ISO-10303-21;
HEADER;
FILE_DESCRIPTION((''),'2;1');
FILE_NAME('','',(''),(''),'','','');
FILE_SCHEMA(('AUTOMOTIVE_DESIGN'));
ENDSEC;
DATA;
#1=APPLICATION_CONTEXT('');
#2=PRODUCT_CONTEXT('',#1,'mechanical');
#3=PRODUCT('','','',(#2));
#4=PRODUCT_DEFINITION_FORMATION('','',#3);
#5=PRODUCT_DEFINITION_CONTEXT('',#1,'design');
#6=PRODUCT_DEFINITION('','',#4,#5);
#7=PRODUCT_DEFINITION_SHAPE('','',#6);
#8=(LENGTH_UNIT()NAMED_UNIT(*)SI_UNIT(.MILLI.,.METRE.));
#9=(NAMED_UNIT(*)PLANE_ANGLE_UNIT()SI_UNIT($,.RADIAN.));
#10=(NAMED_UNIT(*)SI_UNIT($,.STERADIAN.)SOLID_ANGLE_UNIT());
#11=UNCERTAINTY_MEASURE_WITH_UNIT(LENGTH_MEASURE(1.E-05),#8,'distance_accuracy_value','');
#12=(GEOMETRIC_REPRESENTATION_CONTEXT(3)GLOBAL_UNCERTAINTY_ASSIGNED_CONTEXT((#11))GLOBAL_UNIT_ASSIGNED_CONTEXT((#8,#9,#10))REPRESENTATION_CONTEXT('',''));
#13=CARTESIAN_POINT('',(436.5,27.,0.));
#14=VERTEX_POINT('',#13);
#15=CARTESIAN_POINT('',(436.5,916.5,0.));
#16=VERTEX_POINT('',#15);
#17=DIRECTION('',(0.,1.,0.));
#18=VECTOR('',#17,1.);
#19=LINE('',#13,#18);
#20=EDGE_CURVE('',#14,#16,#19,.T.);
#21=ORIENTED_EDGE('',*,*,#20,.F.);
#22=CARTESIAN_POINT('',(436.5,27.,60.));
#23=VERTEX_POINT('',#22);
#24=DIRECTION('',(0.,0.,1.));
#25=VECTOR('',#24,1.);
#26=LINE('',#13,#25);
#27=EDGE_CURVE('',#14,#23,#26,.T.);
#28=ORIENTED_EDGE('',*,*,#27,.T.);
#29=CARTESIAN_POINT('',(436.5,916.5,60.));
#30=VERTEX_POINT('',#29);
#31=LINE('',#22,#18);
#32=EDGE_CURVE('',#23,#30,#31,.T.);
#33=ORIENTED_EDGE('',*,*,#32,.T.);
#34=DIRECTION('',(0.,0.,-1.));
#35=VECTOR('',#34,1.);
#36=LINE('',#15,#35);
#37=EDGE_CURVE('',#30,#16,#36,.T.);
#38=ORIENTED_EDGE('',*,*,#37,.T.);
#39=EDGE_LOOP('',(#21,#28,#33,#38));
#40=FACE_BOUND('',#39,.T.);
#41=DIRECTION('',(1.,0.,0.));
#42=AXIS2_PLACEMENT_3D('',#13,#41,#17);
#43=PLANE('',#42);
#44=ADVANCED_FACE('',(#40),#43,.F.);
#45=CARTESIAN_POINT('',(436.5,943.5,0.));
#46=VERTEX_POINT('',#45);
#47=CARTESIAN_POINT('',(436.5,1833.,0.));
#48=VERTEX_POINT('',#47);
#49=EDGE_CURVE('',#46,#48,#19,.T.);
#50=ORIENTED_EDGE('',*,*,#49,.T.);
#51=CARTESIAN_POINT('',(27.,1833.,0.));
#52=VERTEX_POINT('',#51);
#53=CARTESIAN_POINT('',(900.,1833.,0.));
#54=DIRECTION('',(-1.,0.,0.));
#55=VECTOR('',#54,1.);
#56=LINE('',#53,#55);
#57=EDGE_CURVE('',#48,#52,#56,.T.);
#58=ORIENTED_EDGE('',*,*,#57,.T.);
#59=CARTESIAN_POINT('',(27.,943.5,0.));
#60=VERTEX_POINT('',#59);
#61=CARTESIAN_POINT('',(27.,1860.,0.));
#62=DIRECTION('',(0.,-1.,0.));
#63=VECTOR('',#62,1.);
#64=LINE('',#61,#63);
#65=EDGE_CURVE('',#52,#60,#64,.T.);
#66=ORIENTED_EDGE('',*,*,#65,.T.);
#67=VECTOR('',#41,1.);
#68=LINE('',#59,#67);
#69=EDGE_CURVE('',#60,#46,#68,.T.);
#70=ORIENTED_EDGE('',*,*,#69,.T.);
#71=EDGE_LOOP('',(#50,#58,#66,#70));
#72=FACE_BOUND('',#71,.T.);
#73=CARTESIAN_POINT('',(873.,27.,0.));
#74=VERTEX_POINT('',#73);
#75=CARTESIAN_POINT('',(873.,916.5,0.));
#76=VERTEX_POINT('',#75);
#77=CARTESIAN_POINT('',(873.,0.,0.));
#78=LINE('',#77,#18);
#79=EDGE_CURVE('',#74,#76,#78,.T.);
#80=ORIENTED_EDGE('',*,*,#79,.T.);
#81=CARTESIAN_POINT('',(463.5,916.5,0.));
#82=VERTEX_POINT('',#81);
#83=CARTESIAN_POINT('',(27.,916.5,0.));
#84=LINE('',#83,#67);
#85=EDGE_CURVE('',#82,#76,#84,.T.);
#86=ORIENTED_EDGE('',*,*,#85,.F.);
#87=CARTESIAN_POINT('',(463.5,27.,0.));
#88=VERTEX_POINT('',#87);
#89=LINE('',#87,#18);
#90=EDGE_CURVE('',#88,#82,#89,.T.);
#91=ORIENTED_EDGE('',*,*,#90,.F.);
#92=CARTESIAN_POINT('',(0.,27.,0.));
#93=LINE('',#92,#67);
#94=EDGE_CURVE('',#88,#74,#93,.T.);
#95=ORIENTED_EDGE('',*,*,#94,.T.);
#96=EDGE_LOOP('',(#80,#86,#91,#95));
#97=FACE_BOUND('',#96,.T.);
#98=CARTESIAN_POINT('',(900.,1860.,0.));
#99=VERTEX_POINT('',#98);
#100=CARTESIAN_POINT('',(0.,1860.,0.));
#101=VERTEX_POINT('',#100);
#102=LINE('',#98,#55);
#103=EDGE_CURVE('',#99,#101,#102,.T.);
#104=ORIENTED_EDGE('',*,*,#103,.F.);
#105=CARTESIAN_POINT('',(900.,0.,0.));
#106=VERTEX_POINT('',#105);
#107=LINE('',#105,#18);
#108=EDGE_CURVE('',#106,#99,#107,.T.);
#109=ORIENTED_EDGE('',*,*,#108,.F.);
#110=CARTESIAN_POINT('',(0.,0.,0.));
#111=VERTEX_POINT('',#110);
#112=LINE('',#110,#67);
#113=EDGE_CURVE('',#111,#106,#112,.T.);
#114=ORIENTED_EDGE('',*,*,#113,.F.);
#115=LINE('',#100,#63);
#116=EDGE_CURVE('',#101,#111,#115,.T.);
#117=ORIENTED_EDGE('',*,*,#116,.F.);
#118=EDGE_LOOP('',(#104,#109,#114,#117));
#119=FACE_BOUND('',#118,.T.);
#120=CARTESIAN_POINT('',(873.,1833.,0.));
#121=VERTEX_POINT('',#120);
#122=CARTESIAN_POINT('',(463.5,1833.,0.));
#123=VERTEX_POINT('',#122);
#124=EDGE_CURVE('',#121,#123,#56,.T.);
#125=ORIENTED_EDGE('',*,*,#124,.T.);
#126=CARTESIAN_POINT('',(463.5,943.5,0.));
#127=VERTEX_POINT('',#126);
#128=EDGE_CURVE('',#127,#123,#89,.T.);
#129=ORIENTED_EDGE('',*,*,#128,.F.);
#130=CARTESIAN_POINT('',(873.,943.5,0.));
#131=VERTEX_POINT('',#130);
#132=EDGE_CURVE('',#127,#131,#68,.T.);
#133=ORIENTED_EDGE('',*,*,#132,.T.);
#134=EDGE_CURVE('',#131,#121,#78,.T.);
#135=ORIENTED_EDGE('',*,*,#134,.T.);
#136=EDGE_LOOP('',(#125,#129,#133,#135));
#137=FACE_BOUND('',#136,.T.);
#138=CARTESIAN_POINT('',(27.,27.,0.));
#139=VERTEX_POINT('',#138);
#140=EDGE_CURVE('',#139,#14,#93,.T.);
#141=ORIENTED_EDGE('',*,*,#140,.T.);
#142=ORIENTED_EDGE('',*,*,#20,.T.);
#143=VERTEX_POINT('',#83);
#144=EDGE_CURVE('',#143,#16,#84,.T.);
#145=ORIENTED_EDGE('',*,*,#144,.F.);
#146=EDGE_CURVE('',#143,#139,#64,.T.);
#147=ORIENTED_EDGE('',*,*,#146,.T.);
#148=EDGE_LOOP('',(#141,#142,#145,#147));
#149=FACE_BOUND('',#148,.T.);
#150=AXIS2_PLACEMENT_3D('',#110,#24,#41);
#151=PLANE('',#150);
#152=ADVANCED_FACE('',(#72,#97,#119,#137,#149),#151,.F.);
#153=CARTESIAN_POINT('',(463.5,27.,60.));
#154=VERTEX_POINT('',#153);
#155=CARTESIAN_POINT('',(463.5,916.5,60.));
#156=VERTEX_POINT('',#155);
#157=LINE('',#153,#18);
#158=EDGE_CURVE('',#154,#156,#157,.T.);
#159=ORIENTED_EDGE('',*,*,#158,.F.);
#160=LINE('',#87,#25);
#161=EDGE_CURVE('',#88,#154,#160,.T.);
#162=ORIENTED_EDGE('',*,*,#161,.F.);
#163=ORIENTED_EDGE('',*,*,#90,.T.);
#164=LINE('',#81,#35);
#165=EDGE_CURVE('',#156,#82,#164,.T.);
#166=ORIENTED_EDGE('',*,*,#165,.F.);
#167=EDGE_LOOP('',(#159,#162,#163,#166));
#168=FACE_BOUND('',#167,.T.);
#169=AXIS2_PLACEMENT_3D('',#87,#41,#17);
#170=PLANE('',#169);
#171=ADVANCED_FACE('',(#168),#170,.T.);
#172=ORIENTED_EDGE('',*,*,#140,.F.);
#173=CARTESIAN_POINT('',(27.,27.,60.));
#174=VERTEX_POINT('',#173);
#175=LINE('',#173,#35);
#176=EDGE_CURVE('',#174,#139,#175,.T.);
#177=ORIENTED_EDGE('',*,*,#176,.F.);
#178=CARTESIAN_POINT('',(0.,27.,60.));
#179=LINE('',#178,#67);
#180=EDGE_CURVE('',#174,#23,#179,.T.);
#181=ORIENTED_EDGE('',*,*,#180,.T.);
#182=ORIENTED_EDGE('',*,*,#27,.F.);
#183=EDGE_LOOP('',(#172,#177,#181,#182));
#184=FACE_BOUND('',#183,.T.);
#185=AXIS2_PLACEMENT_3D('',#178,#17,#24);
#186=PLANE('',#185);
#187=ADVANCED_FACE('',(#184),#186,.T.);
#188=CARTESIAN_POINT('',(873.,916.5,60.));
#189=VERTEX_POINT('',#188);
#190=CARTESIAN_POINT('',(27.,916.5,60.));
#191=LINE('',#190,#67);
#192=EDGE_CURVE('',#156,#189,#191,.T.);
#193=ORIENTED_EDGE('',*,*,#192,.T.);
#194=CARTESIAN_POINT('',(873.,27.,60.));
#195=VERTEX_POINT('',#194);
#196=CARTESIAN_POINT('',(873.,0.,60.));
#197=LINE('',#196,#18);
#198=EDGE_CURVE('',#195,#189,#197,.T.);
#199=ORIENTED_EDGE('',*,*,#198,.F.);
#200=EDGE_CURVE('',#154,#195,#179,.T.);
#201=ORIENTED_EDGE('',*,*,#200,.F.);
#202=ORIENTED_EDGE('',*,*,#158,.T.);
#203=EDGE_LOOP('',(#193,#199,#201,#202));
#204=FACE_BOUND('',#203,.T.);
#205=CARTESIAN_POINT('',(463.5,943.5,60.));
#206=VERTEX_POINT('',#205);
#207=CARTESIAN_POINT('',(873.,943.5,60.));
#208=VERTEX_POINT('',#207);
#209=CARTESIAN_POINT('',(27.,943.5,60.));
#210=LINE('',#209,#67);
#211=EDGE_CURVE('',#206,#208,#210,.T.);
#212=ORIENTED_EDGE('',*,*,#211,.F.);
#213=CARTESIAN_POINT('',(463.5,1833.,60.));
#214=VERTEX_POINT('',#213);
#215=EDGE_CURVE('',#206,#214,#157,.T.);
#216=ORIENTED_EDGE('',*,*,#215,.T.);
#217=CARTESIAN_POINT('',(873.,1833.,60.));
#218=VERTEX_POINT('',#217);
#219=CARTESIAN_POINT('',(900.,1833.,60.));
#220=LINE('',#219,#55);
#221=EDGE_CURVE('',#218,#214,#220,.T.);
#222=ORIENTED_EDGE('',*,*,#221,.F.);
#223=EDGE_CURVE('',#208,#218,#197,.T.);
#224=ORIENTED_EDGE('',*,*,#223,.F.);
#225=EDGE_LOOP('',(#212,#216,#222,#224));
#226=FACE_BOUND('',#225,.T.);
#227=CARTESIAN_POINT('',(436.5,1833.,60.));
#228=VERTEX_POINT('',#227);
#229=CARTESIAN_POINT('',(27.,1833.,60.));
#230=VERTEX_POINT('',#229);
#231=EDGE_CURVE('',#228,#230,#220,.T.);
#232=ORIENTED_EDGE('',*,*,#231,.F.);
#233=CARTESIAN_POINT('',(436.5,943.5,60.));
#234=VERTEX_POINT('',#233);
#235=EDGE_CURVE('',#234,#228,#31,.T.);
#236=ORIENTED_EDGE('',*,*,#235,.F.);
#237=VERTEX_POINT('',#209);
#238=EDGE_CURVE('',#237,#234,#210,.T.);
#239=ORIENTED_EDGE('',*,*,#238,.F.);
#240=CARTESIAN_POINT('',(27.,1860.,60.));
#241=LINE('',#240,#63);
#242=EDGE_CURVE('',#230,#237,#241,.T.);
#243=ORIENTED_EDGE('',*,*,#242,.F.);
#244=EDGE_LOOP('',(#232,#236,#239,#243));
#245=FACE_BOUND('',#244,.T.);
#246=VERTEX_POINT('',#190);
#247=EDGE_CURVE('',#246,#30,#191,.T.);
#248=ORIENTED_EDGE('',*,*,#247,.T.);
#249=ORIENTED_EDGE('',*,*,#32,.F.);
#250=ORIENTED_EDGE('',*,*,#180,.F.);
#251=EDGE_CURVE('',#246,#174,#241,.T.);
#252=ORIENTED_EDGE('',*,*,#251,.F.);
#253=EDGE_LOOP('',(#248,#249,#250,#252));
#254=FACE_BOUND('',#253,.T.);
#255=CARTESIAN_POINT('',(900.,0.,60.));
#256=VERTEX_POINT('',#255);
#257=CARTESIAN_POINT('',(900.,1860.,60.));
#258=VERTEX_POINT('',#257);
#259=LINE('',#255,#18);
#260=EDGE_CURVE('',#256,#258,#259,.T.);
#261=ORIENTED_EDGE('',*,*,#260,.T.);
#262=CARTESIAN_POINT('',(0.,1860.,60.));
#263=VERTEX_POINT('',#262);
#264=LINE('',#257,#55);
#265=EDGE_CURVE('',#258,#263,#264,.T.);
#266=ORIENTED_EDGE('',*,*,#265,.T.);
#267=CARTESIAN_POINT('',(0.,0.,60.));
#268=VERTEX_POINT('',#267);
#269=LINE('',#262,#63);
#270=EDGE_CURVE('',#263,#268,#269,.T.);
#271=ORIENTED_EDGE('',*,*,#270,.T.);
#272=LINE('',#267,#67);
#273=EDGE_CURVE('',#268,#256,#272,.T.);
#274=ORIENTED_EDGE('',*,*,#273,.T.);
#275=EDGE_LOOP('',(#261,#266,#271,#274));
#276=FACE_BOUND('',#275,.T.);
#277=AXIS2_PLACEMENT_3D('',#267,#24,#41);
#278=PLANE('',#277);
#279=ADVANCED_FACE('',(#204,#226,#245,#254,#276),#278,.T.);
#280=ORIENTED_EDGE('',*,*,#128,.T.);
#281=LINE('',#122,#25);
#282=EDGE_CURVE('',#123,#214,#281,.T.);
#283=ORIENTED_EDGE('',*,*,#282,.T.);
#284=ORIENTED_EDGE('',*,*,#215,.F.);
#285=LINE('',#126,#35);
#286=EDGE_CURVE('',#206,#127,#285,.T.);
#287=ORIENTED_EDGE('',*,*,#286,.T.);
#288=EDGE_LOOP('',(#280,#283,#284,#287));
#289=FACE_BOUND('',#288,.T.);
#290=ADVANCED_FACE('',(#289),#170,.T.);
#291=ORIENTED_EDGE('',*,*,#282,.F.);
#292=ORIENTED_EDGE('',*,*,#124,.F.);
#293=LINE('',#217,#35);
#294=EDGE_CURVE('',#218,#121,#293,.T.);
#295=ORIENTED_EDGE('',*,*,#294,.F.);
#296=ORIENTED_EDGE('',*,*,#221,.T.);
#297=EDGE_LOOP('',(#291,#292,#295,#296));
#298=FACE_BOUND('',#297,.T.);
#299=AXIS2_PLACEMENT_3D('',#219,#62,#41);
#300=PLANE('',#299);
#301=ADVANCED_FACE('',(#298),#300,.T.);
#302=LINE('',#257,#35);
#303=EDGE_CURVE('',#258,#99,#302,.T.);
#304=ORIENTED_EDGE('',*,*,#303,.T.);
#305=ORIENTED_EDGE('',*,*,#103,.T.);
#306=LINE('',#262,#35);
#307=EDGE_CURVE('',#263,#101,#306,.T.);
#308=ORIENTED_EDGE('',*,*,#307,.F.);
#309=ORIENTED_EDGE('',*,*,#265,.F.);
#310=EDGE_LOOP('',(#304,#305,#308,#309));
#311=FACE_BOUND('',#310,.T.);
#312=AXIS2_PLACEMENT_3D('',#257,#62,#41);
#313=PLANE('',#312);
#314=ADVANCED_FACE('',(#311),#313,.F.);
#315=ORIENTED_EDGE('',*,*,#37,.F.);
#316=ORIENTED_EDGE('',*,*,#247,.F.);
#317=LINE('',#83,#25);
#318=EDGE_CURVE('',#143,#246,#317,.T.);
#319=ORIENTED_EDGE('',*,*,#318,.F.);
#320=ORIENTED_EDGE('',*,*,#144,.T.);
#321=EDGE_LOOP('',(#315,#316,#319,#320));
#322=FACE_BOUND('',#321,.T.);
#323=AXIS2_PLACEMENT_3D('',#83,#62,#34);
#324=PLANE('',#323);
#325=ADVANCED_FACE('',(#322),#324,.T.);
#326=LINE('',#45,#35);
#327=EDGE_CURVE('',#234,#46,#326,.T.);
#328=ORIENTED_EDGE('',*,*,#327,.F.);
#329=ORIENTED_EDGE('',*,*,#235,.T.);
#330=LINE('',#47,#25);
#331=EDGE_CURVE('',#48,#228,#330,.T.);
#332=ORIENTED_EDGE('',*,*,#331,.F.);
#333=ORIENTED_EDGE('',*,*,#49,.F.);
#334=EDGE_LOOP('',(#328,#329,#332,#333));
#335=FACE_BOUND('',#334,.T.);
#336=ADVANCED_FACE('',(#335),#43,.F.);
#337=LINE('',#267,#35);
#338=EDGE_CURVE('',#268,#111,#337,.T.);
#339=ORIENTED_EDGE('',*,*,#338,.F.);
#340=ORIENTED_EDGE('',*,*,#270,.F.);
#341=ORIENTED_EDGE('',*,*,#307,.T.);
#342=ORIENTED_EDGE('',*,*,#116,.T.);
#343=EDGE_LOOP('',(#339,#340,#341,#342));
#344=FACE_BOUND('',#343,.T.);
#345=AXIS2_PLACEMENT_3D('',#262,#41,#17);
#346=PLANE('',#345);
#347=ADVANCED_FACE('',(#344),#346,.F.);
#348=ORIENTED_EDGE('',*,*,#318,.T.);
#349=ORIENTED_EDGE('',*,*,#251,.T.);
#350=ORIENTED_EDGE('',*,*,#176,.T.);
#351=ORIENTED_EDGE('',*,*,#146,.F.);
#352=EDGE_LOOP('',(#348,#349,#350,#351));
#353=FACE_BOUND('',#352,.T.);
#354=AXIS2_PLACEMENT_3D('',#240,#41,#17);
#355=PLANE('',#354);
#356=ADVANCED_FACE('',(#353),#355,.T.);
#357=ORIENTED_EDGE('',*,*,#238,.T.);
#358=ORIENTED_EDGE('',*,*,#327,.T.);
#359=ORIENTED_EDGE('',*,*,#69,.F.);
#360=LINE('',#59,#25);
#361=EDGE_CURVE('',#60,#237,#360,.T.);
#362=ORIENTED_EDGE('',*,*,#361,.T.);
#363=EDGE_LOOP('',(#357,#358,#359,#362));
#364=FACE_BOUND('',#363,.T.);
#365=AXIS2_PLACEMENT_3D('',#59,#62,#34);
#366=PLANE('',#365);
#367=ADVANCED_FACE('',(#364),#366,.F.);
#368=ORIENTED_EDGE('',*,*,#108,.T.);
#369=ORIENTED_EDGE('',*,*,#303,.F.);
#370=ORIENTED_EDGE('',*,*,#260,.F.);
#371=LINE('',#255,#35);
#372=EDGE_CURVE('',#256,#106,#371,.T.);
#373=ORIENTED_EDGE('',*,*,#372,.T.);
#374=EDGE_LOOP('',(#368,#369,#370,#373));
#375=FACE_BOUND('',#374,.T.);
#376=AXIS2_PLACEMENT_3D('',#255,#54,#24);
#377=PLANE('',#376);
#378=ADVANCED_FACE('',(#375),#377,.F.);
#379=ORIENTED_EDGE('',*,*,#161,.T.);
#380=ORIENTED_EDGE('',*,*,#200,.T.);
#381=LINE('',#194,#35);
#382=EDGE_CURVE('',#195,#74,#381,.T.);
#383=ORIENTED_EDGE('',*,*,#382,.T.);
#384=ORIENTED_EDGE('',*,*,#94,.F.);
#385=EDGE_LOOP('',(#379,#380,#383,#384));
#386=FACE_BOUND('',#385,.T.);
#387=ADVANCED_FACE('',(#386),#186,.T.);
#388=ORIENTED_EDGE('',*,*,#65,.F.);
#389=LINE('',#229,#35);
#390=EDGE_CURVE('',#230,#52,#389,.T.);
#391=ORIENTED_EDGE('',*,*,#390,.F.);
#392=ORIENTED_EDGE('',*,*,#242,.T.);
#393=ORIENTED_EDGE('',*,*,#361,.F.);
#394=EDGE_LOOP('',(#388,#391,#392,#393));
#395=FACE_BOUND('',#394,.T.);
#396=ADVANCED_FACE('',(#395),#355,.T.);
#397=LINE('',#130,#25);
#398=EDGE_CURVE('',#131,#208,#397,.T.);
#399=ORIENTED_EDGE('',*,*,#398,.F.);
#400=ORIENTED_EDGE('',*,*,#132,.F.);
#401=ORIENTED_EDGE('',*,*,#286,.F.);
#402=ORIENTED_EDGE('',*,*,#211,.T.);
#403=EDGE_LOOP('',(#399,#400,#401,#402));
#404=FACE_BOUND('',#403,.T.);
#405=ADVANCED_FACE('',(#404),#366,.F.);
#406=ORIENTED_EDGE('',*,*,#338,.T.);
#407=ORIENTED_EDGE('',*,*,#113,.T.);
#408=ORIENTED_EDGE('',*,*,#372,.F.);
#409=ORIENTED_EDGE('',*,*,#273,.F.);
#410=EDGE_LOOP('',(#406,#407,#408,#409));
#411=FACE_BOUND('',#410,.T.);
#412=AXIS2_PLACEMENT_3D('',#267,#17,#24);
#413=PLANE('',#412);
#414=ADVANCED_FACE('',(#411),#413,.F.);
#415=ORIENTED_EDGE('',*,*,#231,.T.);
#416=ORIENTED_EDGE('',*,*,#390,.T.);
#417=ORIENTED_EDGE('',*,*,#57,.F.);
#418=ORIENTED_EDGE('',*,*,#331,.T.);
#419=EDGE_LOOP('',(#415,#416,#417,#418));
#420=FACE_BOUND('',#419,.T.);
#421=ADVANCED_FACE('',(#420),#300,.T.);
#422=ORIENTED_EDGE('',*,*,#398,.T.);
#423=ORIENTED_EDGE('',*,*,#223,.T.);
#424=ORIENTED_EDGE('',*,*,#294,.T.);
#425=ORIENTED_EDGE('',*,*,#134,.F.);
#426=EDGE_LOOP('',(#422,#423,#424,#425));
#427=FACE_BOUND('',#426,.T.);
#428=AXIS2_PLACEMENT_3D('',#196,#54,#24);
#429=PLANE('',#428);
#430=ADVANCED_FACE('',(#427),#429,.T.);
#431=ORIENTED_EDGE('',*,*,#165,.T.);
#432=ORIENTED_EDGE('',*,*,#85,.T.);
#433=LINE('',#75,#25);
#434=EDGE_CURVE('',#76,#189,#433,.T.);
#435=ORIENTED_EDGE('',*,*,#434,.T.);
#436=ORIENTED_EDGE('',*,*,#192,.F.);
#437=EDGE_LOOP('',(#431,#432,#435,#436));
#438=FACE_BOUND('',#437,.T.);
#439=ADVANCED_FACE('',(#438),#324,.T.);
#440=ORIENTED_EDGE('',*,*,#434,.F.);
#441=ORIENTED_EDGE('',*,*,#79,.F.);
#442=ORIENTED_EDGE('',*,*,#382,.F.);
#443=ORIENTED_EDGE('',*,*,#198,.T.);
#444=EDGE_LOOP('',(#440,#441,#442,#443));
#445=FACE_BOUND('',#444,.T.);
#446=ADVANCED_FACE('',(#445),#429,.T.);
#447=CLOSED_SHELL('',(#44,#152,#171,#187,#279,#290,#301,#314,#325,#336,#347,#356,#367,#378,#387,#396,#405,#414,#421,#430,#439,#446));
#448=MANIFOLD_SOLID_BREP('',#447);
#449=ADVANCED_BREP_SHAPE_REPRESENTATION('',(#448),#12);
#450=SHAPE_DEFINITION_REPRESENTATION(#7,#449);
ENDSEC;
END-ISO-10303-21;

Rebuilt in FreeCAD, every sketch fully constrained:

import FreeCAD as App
import Part
import Sketcher
from FreeCAD import Vector


def add_polygon(sketch, points):
    """Adds a closed chain of lines whose ends are joined by coincident constraints."""
    first, n = sketch.GeometryCount, len(points)
    for a, b in zip(points, points[1:] + points[:1]):
        sketch.addGeometry(Part.LineSegment(App.Vector(*a, 0), App.Vector(*b, 0)), False)
    for i in range(n):
        sketch.addConstraint(Sketcher.Constraint("Coincident", first + i, 2, first + (i + 1) % n, 1))

doc = App.newDocument("Part")
body = doc.addObject("PartDesign::Body", "Body")

sketch1 = doc.addObject("Sketcher::SketchObject", "Sketch")
body.addObject(sketch1)
sketch1.AttachmentSupport = (doc.XY_Plane, [""])
sketch1.MapMode = "FlatFace"
add_polygon(sketch1, [(0, 1860), (0, 0), (900, 0), (900, 1860)])
add_polygon(sketch1, [(873, 27), (27, 27), (27, 1833), (873, 1833)])
sketch1.addConstraint([
    Sketcher.Constraint("Vertical", 0),
    Sketcher.Constraint("Horizontal", 1),
    Sketcher.Constraint("Vertical", 2),
    Sketcher.Constraint("Horizontal", 3),
    Sketcher.Constraint("Horizontal", 4),
    Sketcher.Constraint("Vertical", 5),
    Sketcher.Constraint("Horizontal", 6),
    Sketcher.Constraint("Vertical", 7),
    Sketcher.Constraint("Coincident", 0, 2, -1, 1),
    Sketcher.Constraint("DistanceX", 1, 1, 1, 2, 900.0),
    Sketcher.Constraint("DistanceX", 4, 2, 4, 1, 846.0),
    Sketcher.Constraint("DistanceY", 0, 2, 0, 1, 1860.0),
    Sketcher.Constraint("DistanceY", 5, 1, 5, 2, 1806.0),
    Sketcher.Constraint("DistanceX", -1, 1, 4, 2, 27.0),
    Sketcher.Constraint("DistanceY", -1, 1, 4, 2, 27.0),
])
pad1 = doc.addObject("PartDesign::Pad", "Pad")
body.addObject(pad1)
pad1.Profile = sketch1
pad1.Length = 60

sketch2 = doc.addObject("Sketcher::SketchObject", "Sketch001")
body.addObject(sketch2)
sketch2.AttachmentSupport = (doc.XY_Plane, [""])
sketch2.MapMode = "FlatFace"
sketch2.AttachmentOffset = App.Placement(Vector(0, 0, 60), App.Rotation())
add_polygon(sketch2, [(436, 1833), (436, 27), (464, 27), (464, 1833)])
sketch2.addConstraint([
    Sketcher.Constraint("Vertical", 0),
    Sketcher.Constraint("Horizontal", 1),
    Sketcher.Constraint("Vertical", 2),
    Sketcher.Constraint("Horizontal", 3),
    Sketcher.Constraint("DistanceX", 1, 1, 1, 2, 27.0),
    Sketcher.Constraint("DistanceY", 0, 2, 0, 1, 1806.0),
    Sketcher.Constraint("DistanceY", -1, 1, 0, 2, 27.0),
    Sketcher.Constraint("DistanceX", -1, 1, 0, 2, 436.5),
])
pad2 = doc.addObject("PartDesign::Pad", "Pad001")
body.addObject(pad2)
pad2.Profile = sketch2
pad2.Length = 60
pad2.Reversed = True

sketch3 = doc.addObject("Sketcher::SketchObject", "Sketch002")
body.addObject(sketch3)
sketch3.AttachmentSupport = (doc.XY_Plane, [""])
sketch3.MapMode = "FlatFace"
sketch3.AttachmentOffset = App.Placement(Vector(0, 0, 60), App.Rotation())
add_polygon(sketch3, [(27, 944), (27, 916), (873, 916), (873, 944)])
sketch3.addConstraint([
    Sketcher.Constraint("Vertical", 0),
    Sketcher.Constraint("Horizontal", 1),
    Sketcher.Constraint("Vertical", 2),
    Sketcher.Constraint("Horizontal", 3),
    Sketcher.Constraint("DistanceX", 1, 1, 1, 2, 846.0),
    Sketcher.Constraint("DistanceY", 0, 2, 0, 1, 27.0),
    Sketcher.Constraint("DistanceX", -1, 1, 0, 2, 27.0),
    Sketcher.Constraint("DistanceY", -1, 1, 0, 2, 916.5),
])
pad3 = doc.addObject("PartDesign::Pad", "Pad002")
body.addObject(pad3)
pad3.Profile = sketch3
pad3.Length = 60
pad3.Reversed = True

doc.recompute()
